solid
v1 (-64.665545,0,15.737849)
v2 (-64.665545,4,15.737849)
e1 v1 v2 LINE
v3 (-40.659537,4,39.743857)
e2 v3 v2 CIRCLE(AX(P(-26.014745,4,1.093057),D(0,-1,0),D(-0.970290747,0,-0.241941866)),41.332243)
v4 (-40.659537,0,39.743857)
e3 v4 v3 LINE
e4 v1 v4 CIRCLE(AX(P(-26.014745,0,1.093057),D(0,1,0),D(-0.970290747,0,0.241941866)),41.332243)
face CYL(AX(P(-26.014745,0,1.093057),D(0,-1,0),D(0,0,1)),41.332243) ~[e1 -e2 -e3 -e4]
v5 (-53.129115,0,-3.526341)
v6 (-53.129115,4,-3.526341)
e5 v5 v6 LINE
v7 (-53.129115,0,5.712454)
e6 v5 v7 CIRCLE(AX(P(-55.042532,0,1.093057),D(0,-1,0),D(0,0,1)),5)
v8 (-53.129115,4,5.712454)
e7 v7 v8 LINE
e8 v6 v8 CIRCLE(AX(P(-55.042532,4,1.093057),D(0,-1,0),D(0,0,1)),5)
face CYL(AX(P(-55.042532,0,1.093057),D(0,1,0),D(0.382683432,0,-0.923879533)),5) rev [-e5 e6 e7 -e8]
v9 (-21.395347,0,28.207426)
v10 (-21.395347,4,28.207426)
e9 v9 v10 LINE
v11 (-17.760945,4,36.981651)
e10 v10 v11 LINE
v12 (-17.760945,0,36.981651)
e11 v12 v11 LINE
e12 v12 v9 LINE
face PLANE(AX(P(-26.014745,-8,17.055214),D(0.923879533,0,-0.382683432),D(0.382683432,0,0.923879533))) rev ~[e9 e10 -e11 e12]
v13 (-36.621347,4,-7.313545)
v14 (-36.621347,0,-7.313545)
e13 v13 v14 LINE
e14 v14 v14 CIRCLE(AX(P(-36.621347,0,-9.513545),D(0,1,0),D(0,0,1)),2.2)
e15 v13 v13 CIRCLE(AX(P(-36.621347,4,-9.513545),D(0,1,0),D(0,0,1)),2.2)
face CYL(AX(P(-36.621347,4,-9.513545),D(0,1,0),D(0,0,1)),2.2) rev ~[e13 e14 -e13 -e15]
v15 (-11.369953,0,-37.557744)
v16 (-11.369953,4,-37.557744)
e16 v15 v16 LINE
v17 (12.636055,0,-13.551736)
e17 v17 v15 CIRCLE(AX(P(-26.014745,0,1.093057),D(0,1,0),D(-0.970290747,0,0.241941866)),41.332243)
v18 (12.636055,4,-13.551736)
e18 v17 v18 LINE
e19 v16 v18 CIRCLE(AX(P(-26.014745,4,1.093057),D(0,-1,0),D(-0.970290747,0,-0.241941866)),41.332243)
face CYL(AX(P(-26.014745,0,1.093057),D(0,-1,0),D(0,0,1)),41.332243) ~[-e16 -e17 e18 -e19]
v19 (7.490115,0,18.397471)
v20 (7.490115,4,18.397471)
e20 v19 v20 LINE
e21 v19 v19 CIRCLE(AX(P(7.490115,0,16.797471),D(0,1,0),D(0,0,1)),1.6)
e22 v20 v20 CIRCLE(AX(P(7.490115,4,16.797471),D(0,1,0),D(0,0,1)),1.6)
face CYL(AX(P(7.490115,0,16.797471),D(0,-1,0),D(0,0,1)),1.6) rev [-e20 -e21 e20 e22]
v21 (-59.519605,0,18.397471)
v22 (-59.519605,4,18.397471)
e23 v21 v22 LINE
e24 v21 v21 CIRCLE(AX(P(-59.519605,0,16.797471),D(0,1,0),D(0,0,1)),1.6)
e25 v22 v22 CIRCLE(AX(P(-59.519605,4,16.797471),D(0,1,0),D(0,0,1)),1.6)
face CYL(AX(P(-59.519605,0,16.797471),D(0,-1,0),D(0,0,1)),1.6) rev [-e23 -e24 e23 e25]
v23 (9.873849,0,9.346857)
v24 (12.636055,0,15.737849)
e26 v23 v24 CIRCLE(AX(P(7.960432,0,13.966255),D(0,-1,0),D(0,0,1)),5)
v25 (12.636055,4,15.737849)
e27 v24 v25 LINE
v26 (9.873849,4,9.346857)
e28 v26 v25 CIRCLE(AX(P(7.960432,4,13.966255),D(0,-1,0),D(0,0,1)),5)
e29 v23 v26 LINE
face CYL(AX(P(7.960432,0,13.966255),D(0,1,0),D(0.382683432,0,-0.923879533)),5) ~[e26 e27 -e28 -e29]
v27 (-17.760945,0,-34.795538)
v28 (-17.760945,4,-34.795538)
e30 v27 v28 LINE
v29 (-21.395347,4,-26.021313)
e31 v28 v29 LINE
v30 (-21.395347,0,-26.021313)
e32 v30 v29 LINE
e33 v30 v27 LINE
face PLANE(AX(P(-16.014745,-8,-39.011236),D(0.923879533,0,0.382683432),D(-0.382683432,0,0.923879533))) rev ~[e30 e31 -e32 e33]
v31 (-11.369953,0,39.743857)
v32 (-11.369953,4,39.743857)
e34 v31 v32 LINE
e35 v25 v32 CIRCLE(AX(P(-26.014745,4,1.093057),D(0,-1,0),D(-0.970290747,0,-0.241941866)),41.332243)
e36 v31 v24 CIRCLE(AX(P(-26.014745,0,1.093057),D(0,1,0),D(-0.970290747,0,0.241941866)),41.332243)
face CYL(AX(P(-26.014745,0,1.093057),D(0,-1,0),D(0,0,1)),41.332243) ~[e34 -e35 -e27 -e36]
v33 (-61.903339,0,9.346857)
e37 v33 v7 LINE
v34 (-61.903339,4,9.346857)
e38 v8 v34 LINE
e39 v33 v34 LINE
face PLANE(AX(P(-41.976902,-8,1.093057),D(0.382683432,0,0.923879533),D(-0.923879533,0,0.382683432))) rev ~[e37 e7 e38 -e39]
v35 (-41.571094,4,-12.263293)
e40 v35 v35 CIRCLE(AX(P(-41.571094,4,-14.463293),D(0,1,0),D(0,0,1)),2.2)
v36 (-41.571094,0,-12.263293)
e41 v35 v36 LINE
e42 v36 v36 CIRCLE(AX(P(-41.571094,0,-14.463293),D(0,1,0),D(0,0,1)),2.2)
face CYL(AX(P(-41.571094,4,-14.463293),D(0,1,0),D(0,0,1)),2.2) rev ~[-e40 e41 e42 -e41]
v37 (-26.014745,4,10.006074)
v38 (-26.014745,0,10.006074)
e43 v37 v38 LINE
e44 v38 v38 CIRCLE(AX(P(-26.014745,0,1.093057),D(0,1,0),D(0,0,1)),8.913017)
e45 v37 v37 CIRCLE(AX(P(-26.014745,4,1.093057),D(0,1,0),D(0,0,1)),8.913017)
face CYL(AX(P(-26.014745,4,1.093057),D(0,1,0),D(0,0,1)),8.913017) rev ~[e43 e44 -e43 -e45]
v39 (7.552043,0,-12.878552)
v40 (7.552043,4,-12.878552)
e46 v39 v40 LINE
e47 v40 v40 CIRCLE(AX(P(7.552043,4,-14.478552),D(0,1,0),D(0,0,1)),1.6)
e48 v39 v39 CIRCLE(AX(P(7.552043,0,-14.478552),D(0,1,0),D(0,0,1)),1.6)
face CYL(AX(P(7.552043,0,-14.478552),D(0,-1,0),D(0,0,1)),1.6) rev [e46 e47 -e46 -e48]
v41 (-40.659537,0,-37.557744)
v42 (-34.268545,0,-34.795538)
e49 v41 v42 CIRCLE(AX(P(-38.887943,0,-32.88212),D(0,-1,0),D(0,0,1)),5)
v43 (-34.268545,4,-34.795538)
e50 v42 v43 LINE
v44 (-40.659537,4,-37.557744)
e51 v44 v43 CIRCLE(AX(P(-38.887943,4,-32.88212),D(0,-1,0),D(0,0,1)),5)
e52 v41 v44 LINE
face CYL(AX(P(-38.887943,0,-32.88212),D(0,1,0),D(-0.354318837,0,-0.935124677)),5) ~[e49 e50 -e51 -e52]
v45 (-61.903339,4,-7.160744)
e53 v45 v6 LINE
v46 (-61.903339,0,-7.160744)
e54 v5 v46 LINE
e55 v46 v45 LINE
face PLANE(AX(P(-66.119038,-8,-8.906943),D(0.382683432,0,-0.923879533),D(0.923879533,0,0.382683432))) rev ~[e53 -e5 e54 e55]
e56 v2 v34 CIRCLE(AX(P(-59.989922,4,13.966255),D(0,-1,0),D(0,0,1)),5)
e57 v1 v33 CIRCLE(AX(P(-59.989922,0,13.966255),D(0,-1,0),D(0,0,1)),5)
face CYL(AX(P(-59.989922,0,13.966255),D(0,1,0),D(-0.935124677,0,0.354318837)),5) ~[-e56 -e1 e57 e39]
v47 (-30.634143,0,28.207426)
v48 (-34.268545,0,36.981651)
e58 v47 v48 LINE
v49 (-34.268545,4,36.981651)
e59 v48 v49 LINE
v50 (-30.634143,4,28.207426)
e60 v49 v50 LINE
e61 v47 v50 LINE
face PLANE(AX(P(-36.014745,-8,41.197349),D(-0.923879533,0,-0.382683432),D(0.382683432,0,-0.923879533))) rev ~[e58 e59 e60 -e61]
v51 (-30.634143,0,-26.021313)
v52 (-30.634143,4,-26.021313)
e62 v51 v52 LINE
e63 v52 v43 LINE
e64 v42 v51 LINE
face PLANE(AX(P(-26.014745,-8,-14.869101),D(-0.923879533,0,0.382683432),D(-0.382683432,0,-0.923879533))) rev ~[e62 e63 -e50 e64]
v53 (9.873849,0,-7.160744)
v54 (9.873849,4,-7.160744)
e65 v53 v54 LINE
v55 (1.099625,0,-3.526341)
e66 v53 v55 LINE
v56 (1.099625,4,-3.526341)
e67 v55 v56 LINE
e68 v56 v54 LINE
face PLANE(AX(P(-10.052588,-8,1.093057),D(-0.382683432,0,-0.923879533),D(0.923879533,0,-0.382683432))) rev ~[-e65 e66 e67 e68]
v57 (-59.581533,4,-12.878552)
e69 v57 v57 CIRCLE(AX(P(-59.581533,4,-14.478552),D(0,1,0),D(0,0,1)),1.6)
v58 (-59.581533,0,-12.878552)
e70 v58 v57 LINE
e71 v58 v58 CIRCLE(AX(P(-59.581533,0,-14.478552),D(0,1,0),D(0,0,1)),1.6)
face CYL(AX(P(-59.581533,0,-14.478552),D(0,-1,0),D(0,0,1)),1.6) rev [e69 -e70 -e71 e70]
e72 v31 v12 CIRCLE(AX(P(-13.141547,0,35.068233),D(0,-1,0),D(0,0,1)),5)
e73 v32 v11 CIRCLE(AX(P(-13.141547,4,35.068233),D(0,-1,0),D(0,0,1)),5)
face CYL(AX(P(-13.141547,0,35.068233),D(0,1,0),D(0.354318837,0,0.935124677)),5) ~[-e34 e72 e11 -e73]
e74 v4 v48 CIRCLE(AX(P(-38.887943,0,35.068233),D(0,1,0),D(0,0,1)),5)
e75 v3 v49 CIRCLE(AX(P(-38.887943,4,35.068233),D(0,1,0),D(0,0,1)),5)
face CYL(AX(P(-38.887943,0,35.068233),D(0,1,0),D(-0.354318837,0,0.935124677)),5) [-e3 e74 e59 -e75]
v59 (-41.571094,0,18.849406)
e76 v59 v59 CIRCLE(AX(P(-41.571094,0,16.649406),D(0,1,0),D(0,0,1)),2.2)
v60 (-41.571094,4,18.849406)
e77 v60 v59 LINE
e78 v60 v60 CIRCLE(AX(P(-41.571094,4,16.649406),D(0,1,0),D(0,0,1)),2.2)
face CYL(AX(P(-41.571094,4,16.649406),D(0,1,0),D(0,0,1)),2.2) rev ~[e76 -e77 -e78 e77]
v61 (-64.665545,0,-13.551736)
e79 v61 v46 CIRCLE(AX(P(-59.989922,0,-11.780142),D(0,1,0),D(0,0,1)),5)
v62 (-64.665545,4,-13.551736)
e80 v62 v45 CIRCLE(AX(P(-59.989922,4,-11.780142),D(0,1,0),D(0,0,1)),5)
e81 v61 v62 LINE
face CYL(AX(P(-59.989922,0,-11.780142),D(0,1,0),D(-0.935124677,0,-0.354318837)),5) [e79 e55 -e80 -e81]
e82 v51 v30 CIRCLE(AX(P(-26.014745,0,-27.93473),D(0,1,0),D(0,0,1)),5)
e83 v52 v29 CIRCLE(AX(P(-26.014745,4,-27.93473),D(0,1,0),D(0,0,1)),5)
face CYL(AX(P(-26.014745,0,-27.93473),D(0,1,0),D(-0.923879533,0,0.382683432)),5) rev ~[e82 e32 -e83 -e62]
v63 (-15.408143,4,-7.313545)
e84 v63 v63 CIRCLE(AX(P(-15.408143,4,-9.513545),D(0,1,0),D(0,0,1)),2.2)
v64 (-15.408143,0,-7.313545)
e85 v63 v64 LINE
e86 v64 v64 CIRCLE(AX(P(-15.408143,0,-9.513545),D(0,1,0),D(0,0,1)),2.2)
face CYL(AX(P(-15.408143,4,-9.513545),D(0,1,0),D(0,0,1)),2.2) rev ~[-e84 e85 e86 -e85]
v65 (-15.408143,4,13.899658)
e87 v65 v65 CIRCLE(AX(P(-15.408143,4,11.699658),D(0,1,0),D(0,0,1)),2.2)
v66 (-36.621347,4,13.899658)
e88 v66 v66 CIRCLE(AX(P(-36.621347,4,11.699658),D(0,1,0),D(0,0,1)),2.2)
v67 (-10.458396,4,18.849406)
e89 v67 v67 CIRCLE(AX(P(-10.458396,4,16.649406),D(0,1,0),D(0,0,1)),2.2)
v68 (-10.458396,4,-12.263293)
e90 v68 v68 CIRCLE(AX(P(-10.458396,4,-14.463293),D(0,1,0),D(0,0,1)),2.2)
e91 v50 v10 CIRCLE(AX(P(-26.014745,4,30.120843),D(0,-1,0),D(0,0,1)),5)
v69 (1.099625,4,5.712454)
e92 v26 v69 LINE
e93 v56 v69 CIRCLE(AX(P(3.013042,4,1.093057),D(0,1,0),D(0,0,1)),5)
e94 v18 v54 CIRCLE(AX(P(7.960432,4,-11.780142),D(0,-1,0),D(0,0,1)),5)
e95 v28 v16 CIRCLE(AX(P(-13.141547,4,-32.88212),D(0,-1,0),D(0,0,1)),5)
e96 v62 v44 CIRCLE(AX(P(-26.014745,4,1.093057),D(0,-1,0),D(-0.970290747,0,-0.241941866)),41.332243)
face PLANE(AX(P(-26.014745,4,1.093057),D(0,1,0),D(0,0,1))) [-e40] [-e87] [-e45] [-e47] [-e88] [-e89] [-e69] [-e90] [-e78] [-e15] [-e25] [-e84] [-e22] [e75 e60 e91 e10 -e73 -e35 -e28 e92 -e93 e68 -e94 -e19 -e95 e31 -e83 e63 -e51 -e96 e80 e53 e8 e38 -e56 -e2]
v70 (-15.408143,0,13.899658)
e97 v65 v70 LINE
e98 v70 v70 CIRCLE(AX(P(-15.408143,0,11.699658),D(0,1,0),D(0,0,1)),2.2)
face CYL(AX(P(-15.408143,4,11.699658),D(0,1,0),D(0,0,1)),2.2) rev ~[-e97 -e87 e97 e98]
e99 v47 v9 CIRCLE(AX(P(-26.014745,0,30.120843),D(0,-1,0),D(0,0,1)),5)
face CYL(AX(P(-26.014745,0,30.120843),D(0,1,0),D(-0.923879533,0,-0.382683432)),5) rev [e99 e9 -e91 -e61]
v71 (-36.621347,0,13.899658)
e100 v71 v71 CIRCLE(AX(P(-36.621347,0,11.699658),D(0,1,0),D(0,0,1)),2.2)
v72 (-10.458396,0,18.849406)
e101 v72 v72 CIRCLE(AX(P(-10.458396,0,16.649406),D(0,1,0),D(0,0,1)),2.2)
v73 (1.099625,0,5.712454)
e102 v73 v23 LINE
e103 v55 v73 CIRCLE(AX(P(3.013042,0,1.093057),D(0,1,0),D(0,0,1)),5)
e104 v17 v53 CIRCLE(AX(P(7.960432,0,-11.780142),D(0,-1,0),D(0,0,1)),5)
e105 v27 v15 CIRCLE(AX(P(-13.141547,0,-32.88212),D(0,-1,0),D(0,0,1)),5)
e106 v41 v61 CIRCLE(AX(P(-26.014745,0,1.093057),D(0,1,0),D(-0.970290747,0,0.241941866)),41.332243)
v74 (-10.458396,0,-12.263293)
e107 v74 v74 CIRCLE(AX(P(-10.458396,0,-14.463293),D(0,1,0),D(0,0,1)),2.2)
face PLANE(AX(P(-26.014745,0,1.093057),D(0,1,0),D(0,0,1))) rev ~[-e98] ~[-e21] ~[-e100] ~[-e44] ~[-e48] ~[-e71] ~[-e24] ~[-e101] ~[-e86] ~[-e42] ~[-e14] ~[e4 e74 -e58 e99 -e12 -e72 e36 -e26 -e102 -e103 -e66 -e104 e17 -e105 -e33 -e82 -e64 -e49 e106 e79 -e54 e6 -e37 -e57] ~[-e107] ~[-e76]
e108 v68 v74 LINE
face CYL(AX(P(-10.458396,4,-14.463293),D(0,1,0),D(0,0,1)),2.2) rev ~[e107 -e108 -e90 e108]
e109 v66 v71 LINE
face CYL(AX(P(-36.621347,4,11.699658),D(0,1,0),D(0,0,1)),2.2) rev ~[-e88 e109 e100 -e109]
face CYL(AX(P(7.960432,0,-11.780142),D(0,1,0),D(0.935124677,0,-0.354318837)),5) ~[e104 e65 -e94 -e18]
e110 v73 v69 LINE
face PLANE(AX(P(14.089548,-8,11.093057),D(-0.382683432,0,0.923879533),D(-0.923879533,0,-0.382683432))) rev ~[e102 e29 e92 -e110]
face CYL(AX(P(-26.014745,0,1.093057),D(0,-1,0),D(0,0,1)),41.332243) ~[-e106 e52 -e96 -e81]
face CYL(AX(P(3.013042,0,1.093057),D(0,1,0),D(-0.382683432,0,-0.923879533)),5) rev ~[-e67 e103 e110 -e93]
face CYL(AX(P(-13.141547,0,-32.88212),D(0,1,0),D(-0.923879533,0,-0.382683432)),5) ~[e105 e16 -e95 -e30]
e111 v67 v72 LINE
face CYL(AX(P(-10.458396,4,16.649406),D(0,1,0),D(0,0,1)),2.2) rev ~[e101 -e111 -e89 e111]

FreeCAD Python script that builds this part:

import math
import FreeCAD as App
import Part
import Sketcher
from FreeCAD import Vector
Q = App.Units.Quantity


def edges_at(feature, points):
    """Names of the edges that pass closest to the given points."""
    edges = feature.Shape.Edges
    near = lambda p: min(range(len(edges)), key=lambda i: edges[i].distToShape(Part.Vertex(*p))[0])
    return sorted({f"Edge{near(p) + 1}" for p in points})

doc = App.newDocument("Part")
body = doc.addObject("PartDesign::Body", "Body")

# Sketch on XZ plane
sketch1 = body.newObject("Sketcher::SketchObject", "Sketch")
sketch1.AttachmentSupport = (doc.getObject("XZ_Plane"), [""])
sketch1.MapMode = "FlatFace"
sketch1.addGeometry([
    Part.Circle(Vector(-26, 1.1, 0), Vector(0, 0, 1), 41.3),  # 0
    Part.Circle(Vector(-59.6, -14.5, 0), Vector(0, 0, 1), 1.6),  # 1
    Part.Circle(Vector(-59.5, 16.8, 0), Vector(0, 0, 1), 1.6),  # 2
    Part.Circle(Vector(7.6, -14.5, 0), Vector(0, 0, 1), 1.6),  # 3
    Part.Circle(Vector(7.5, 16.8, 0), Vector(0, 0, 1), 1.6),  # 4
], False)
sketch1.addConstraint([
    Sketcher.Constraint("Equal", 1, 2),
    Sketcher.Constraint("Equal", 2, 3),
    Sketcher.Constraint("Equal", 3, 4),
    Sketcher.Constraint("Horizontal", 1, 3, 3, 3),
    Sketcher.Constraint("Horizontal", 2, 3, 4, 3),
    Sketcher.Constraint("Diameter", 1, Q("3.2 mm")),
    Sketcher.Constraint("Diameter", 0, Q("82.664486 mm")),
    Sketcher.Constraint("DistanceY", -1, 1, 2, 3, Q("16.797471 mm")),
    Sketcher.Constraint("DistanceX", 1, 3, 0, 3, Q("33.566788 mm")),
    Sketcher.Constraint("DistanceY", 1, 3, 0, 3, Q("15.571609 mm")),
    Sketcher.Constraint("DistanceX", 1, 3, 2, 3, Q("0.061928 mm")),
    Sketcher.Constraint("DistanceX", 0, 3, 3, 3, Q("33.566788 mm")),
    Sketcher.Constraint("DistanceX", 4, 3, 3, 3, Q("0.061928 mm")),
    Sketcher.Constraint("DistanceX", 0, 3, -1, 1, Q("26.014745 mm")),
    Sketcher.Constraint("DistanceY", -1, 1, 0, 3, Q("1.093057 mm")),
])
pad1 = body.newObject("PartDesign::Pad", "Pad")
pad1.Profile = sketch1
pad1.Length = 4
pad1.Reversed = True

# Sketch on XZ plane
sketch2 = body.newObject("Sketcher::SketchObject", "Sketch001")
sketch2.AttachmentSupport = (doc.getObject("XZ_Plane"), [""])
sketch2.MapMode = "FlatFace"
sketch2.AttachmentOffset = App.Placement(Vector(0, 0, -4), App.Rotation())
sketch2.addGeometry([
    Part.Circle(Vector(-26, 1.1, 0), Vector(0, 0, 1), 8.9),  # 0
    Part.Circle(Vector(-15.4, -9.5, 0), Vector(0, 0, 1), 2.2),  # 1
    Part.Circle(Vector(-10.5, -14.5, 0), Vector(0, 0, 1), 2.2),  # 2
    Part.Circle(Vector(-36.6, -9.5, 0), Vector(0, 0, 1), 2.2),  # 3
    Part.Circle(Vector(-41.6, -14.5, 0), Vector(0, 0, 1), 2.2),  # 4
    Part.Circle(Vector(-36.6, 11.7, 0), Vector(0, 0, 1), 2.2),  # 5
    Part.Circle(Vector(-41.6, 16.6, 0), Vector(0, 0, 1), 2.2),  # 6
    Part.Circle(Vector(-15.4, 11.7, 0), Vector(0, 0, 1), 2.2),  # 7
    Part.Circle(Vector(-10.5, 16.6, 0), Vector(0, 0, 1), 2.2),  # 8
], False)
sketch2.addConstraint([
    Sketcher.Constraint("Equal", 1, 2),
    Sketcher.Constraint("Equal", 2, 3),
    Sketcher.Constraint("Equal", 3, 4),
    Sketcher.Constraint("Equal", 4, 5),
    Sketcher.Constraint("Equal", 5, 6),
    Sketcher.Constraint("Equal", 6, 7),
    Sketcher.Constraint("Equal", 7, 8),
    Sketcher.Constraint("Horizontal", 1, 3, 3, 3),
    Sketcher.Constraint("Horizontal", 2, 3, 4, 3),
    Sketcher.Constraint("Horizontal", 5, 3, 7, 3),
    Sketcher.Constraint("Horizontal", 6, 3, 8, 3),
    Sketcher.Constraint("Vertical", 3, 3, 5, 3),
    Sketcher.Constraint("Vertical", 4, 3, 6, 3),
    Sketcher.Constraint("Vertical", 1, 3, 7, 3),
    Sketcher.Constraint("Vertical", 2, 3, 8, 3),
    Sketcher.Constraint("Diameter", 1, Q("4.4 mm")),
    Sketcher.Constraint("Diameter", 0, Q("17.826034 mm")),
    Sketcher.Constraint("DistanceX", 0, 3, 1, 3, Q("10.606602 mm")),
    Sketcher.Constraint("DistanceY", 1, 3, 0, 3, Q("10.606602 mm")),
    Sketcher.Constraint("DistanceX", 3, 3, 0, 3, Q("10.606602 mm")),
    Sketcher.Constraint("DistanceX", 4, 3, 2, 3, Q("31.112698 mm")),
    Sketcher.Constraint("DistanceY", 0, 3, 5, 3, Q("10.606602 mm")),
    Sketcher.Constraint("DistanceY", 4, 3, 6, 3, Q("31.112698 mm")),
    Sketcher.Constraint("DistanceY", -1, 1, 5, 3, Q("11.699658 mm")),
    Sketcher.Constraint("DistanceX", 0, 3, 2, 3, Q("15.556349 mm")),
    Sketcher.Constraint("DistanceY", 2, 3, 0, 3, Q("15.556349 mm")),
    Sketcher.Constraint("DistanceX", 0, 3, -1, 1, Q("26.014745 mm")),
])
pocket1 = body.newObject("PartDesign::Pocket", "Pocket")
pocket1.Profile = sketch2
pocket1.Length = 12
pocket1.Reversed = True

# Sketch on XZ plane
sketch3 = body.newObject("Sketcher::SketchObject", "Sketch002")
sketch3.AttachmentSupport = (doc.getObject("XZ_Plane"), [""])
sketch3.MapMode = "FlatFace"
sketch3.AttachmentOffset = App.Placement(Vector(0, 0, 8), App.Rotation())
sketch3.addGeometry([
    Part.LineSegment(Vector(-42, 1, 0), Vector(-66, -9, 0)),
    Part.ArcOfCircle(Part.Circle(Vector(-26, 1, 0), Vector(0, 0, 1), 41), math.radians(166), math.radians(194)),
    Part.LineSegment(Vector(-66, 11, 0), Vector(-42, 1, 0)),
], False)
sketch3.addConstraint([
    Sketcher.Constraint("Coincident", 0, 2, 1, 2),
    Sketcher.Constraint("Coincident", 1, 1, 2, 1),
    Sketcher.Constraint("Coincident", 2, 2, 0, 1),
    Sketcher.Constraint("Horizontal", 1, 3, 2, 2),
    Sketcher.Constraint("Vertical", 0, 2, 1, 1),
    Sketcher.Constraint("Angle", 0, Q("-157.5 deg")),
    Sketcher.Constraint("DistanceY", 0, 2, 1, 3, Q("10 mm")),
    Sketcher.Constraint("Radius", 1, Q("41.332243 mm")),
    Sketcher.Constraint("DistanceX", 1, 3, -1, 1, Q("26.014745 mm")),
    Sketcher.Constraint("DistanceY", -1, 1, 1, 3, Q("1.093057 mm")),
])
pocket2 = body.newObject("PartDesign::Pocket", "Pocket001")
pocket2.Profile = sketch3
pocket2.Length = 12
doc.recompute()

fillet = body.newObject("PartDesign::Fillet", "Fillet")
fillet.Base = (pocket2, edges_at(pocket2, [(-66.119, 2, 11.093), (-66.119, 2, -8.907), (-41.977, 2, 1.093)]))
fillet.Radius = 5
doc.recompute()

datumline = body.newObject("PartDesign::Line", "DatumLine")
datumline.Placement = App.Placement(Vector(-26.014745, 0, 1.093057), App.Rotation(Vector(0, 0, 1), Vector(0, 1, 0)))
polarpattern = body.newObject("PartDesign::PolarPattern", "PolarPattern")
polarpattern.Originals = [pocket2]
polarpattern.Axis = (datumline, [""])
polarpattern.Angle = 360
polarpattern.Occurrences = 4
body.Tip = polarpattern
doc.recompute()

fillet2 = body.newObject("PartDesign::Fillet", "Fillet001")
fillet2.Base = (polarpattern, edges_at(polarpattern, [
    (-16.015, 2, 41.197),
    (-36.015, 2, 41.197),
    (-26.015, 2, 17.055),
    (14.09, 2, -8.907),
    (14.09, 2, 11.093),
    (-10.053, 2, 1.093),
    (-36.015, 2, -39.011),
    (-16.015, 2, -39.011),
    (-26.015, 2, -14.869),
]))
fillet2.Radius = 5

doc.recompute()
